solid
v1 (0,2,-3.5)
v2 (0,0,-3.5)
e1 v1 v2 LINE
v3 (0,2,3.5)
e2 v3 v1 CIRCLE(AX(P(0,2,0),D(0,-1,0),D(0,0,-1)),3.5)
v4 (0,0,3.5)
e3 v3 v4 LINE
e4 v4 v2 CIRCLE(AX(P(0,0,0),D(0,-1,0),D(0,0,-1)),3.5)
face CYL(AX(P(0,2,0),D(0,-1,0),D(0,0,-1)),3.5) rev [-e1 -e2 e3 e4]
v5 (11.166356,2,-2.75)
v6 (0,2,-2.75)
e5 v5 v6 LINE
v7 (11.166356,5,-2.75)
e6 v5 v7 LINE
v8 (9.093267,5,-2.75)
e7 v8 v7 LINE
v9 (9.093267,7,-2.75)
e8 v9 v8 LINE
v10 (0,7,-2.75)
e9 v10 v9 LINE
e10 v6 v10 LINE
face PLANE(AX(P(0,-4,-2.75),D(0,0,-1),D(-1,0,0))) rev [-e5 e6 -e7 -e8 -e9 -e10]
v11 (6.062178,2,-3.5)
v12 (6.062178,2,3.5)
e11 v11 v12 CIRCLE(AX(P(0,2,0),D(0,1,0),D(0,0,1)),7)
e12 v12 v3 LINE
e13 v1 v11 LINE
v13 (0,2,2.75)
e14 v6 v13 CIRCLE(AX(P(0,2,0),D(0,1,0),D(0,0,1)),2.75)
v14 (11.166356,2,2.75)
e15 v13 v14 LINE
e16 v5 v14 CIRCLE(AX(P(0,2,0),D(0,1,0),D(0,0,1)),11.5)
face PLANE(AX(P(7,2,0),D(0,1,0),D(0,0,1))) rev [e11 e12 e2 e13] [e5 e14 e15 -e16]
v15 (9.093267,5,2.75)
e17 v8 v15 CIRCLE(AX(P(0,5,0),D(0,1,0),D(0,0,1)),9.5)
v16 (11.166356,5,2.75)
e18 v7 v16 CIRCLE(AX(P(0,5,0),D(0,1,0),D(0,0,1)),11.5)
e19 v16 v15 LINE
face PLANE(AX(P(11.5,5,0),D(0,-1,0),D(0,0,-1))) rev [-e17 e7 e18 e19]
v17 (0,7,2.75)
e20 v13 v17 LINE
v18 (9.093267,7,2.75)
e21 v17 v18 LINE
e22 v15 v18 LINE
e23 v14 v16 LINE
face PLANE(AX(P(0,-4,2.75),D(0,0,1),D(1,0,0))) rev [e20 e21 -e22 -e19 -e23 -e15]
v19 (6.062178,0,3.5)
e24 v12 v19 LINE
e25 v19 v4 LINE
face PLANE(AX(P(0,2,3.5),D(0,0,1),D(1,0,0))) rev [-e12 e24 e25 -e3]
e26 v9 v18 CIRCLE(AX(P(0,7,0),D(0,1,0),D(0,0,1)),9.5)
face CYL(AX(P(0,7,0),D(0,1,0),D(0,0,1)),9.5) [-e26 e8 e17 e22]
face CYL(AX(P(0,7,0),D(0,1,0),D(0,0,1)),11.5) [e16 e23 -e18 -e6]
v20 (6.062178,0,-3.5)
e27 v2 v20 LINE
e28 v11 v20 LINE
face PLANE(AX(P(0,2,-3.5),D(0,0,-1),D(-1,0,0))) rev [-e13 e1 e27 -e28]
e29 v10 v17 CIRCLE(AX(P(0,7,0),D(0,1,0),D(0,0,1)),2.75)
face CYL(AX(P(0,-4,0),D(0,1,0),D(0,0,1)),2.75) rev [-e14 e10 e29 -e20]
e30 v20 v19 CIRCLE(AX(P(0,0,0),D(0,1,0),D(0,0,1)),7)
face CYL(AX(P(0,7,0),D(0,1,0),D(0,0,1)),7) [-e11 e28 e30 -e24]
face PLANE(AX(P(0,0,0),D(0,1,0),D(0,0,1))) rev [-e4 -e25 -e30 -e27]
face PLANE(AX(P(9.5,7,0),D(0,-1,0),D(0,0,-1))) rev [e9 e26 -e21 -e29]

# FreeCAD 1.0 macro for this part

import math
import FreeCAD as App
import Part
import Sketcher

V = App.Vector
Q = App.Units.Quantity


def add_polygon(sketch, points):
    """Adds a closed chain of lines whose ends are joined by coincident constraints."""
    first, n = sketch.GeometryCount, len(points)
    for a, b in zip(points, points[1:] + points[:1]):
        sketch.addGeometry(Part.LineSegment(App.Vector(*a, 0), App.Vector(*b, 0)), False)
    for i in range(n):
        sketch.addConstraint(Sketcher.Constraint("Coincident", first + i, 2, first + (i + 1) % n, 1))

doc = App.newDocument("Part")
params = doc.addObject("Spreadsheet::Sheet", "Params")
for row, (alias, value) in enumerate([
    ("sketch1_width", "7 mm"),
    ("sketch1_width2", "2 mm"),
    ("sketch1_width3", "4.5 mm"),
    ("revolution_angle", "360 deg"),
    ("sketch2_radius", "7 mm"),
    ("sketch2_radius2", "3.5 mm"),
    ("pocket1_length", "2 mm"),
    ("sketch3_radius", "11.5 mm"),
    ("sketch3_radius2", "2.75 mm"),
    ("pocket2_length", "11 mm"),
], start=1):
    params.set(f"A{row}", alias)
    params.set(f"B{row}", "=" + value)
    params.setAlias(f"B{row}", alias)

body = doc.addObject("PartDesign::Body", "Body")

sketch1 = body.newObject("Sketcher::SketchObject", "Sketch")
sketch1.AttachmentSupport = (doc.getObject("XY_Plane"), [""])
sketch1.MapMode = "FlatFace"
add_polygon(sketch1, [(0, 0), (7, 0), (7, 2), (11.5, 2), (11.5, 5), (9.5, 5), (9.5, 7), (0, 7)])
sketch1.addConstraint([
    Sketcher.Constraint("Horizontal", 0),
    Sketcher.Constraint("Vertical", 1),
    Sketcher.Constraint("Horizontal", 2),
    Sketcher.Constraint("Vertical", 3),
    Sketcher.Constraint("Horizontal", 4),
    Sketcher.Constraint("Vertical", 5),
    Sketcher.Constraint("Horizontal", 6),
    Sketcher.Constraint("Vertical", 7),
    Sketcher.Constraint("Coincident", 7, 2, -1, 1),
    Sketcher.Constraint("Equal", 4, 1),
    Sketcher.Constraint("Equal", 1, 5),
    Sketcher.Constraint("Equal", 0, 7),
    Sketcher.Constraint("DistanceX", 0, 1, 0, 2, Q("7 mm")),
    Sketcher.Constraint("DistanceX", 4, 2, 4, 1, Q("2 mm")),
    Sketcher.Constraint("DistanceX", 2, 1, 2, 2, Q("4.5 mm")),
])
sketch1.setExpression("Constraints[20]", "Params.sketch1_width")
sketch1.setExpression("Constraints[21]", "Params.sketch1_width2")
sketch1.setExpression("Constraints[22]", "Params.sketch1_width3")
revolution = body.newObject("PartDesign::Revolution", "Revolution")
revolution.Profile = sketch1
revolution.ReferenceAxis = (sketch1, ["V_Axis"])
revolution.setExpression("Angle", "Params.revolution_angle")

sketch2 = body.newObject("Sketcher::SketchObject", "Sketch001")
sketch2.AttachmentSupport = (doc.getObject("XZ_Plane"), [""])
sketch2.MapMode = "FlatFace"
sketch2.AttachmentOffset = App.Placement(V(0, 0, -2), App.Rotation())
sketch2.addGeometry([
    Part.LineSegment(V(6.1, 3.5, 0), V(0, 3.5, 0)),
    Part.ArcOfCircle(Part.Circle(V(0, 0, 0), V(0, 0, 1), 3.5), math.radians(90), math.radians(270)),
    Part.LineSegment(V(0, -3.5, 0), V(6.1, -3.5, 0)),
    Part.ArcOfCircle(Part.Circle(V(0, 0, 0), V(0, 0, 1), 7), math.radians(-30), math.radians(30)),
], False)
sketch2.addConstraint([
    Sketcher.Constraint("Tangent", 0, 2, 1, 1),
    Sketcher.Constraint("Tangent", 1, 2, 2, 1),
    Sketcher.Constraint("Coincident", 2, 2, 3, 1),
    Sketcher.Constraint("Coincident", 3, 2, 0, 1),
    Sketcher.Constraint("Horizontal", 0),
    Sketcher.Constraint("Horizontal", 2),
    Sketcher.Constraint("Coincident", 1, 3, -1, 1),
    Sketcher.Constraint("Coincident", 3, 3, -1, 1),
    Sketcher.Constraint("Radius", 3, Q("7 mm")),
    Sketcher.Constraint("Radius", 1, Q("3.5 mm")),
])
sketch2.setExpression("Constraints[8]", "Params.sketch2_radius")
sketch2.setExpression("Constraints[9]", "Params.sketch2_radius2")
pocket1 = body.newObject("PartDesign::Pocket", "Pocket")
pocket1.Profile = sketch2
pocket1.setExpression("Length", "Params.pocket1_length")
pocket1.Reversed = True

sketch3 = body.newObject("Sketcher::SketchObject", "Sketch002")
sketch3.AttachmentSupport = (doc.getObject("XZ_Plane"), [""])
sketch3.MapMode = "FlatFace"
sketch3.AttachmentOffset = App.Placement(V(0, 0, -7), App.Rotation())
sketch3.addGeometry([
    Part.LineSegment(V(11.2, -2.8, 0), V(0, -2.8, 0)),
    Part.ArcOfCircle(Part.Circle(V(0, 0, 0), V(0, 0, 1), 2.8), math.radians(90), math.radians(270)),
    Part.LineSegment(V(0, 2.8, 0), V(11.2, 2.8, 0)),
    Part.ArcOfCircle(Part.Circle(V(0, 0, 0), V(0, 0, 1), 11.5), math.radians(-14), math.radians(14)),
], False)
sketch3.addConstraint([
    Sketcher.Constraint("Tangent", 0, 2, 1, 2),
    Sketcher.Constraint("Tangent", 1, 1, 2, 1),
    Sketcher.Constraint("Coincident", 2, 2, 3, 2),
    Sketcher.Constraint("Coincident", 3, 1, 0, 1),
    Sketcher.Constraint("Horizontal", 0),
    Sketcher.Constraint("Horizontal", 2),
    Sketcher.Constraint("Coincident", 1, 3, -1, 1),
    Sketcher.Constraint("Coincident", 3, 3, -1, 1),
    Sketcher.Constraint("Radius", 3, Q("11.5 mm")),
    Sketcher.Constraint("Radius", 1, Q("2.75 mm")),
])
sketch3.setExpression("Constraints[8]", "Params.sketch3_radius")
sketch3.setExpression("Constraints[9]", "Params.sketch3_radius2")
pocket2 = body.newObject("PartDesign::Pocket", "Pocket001")
pocket2.Profile = sketch3
pocket2.setExpression("Length", "Params.pocket2_length")
pocket2.Reversed = True

doc.recompute()
